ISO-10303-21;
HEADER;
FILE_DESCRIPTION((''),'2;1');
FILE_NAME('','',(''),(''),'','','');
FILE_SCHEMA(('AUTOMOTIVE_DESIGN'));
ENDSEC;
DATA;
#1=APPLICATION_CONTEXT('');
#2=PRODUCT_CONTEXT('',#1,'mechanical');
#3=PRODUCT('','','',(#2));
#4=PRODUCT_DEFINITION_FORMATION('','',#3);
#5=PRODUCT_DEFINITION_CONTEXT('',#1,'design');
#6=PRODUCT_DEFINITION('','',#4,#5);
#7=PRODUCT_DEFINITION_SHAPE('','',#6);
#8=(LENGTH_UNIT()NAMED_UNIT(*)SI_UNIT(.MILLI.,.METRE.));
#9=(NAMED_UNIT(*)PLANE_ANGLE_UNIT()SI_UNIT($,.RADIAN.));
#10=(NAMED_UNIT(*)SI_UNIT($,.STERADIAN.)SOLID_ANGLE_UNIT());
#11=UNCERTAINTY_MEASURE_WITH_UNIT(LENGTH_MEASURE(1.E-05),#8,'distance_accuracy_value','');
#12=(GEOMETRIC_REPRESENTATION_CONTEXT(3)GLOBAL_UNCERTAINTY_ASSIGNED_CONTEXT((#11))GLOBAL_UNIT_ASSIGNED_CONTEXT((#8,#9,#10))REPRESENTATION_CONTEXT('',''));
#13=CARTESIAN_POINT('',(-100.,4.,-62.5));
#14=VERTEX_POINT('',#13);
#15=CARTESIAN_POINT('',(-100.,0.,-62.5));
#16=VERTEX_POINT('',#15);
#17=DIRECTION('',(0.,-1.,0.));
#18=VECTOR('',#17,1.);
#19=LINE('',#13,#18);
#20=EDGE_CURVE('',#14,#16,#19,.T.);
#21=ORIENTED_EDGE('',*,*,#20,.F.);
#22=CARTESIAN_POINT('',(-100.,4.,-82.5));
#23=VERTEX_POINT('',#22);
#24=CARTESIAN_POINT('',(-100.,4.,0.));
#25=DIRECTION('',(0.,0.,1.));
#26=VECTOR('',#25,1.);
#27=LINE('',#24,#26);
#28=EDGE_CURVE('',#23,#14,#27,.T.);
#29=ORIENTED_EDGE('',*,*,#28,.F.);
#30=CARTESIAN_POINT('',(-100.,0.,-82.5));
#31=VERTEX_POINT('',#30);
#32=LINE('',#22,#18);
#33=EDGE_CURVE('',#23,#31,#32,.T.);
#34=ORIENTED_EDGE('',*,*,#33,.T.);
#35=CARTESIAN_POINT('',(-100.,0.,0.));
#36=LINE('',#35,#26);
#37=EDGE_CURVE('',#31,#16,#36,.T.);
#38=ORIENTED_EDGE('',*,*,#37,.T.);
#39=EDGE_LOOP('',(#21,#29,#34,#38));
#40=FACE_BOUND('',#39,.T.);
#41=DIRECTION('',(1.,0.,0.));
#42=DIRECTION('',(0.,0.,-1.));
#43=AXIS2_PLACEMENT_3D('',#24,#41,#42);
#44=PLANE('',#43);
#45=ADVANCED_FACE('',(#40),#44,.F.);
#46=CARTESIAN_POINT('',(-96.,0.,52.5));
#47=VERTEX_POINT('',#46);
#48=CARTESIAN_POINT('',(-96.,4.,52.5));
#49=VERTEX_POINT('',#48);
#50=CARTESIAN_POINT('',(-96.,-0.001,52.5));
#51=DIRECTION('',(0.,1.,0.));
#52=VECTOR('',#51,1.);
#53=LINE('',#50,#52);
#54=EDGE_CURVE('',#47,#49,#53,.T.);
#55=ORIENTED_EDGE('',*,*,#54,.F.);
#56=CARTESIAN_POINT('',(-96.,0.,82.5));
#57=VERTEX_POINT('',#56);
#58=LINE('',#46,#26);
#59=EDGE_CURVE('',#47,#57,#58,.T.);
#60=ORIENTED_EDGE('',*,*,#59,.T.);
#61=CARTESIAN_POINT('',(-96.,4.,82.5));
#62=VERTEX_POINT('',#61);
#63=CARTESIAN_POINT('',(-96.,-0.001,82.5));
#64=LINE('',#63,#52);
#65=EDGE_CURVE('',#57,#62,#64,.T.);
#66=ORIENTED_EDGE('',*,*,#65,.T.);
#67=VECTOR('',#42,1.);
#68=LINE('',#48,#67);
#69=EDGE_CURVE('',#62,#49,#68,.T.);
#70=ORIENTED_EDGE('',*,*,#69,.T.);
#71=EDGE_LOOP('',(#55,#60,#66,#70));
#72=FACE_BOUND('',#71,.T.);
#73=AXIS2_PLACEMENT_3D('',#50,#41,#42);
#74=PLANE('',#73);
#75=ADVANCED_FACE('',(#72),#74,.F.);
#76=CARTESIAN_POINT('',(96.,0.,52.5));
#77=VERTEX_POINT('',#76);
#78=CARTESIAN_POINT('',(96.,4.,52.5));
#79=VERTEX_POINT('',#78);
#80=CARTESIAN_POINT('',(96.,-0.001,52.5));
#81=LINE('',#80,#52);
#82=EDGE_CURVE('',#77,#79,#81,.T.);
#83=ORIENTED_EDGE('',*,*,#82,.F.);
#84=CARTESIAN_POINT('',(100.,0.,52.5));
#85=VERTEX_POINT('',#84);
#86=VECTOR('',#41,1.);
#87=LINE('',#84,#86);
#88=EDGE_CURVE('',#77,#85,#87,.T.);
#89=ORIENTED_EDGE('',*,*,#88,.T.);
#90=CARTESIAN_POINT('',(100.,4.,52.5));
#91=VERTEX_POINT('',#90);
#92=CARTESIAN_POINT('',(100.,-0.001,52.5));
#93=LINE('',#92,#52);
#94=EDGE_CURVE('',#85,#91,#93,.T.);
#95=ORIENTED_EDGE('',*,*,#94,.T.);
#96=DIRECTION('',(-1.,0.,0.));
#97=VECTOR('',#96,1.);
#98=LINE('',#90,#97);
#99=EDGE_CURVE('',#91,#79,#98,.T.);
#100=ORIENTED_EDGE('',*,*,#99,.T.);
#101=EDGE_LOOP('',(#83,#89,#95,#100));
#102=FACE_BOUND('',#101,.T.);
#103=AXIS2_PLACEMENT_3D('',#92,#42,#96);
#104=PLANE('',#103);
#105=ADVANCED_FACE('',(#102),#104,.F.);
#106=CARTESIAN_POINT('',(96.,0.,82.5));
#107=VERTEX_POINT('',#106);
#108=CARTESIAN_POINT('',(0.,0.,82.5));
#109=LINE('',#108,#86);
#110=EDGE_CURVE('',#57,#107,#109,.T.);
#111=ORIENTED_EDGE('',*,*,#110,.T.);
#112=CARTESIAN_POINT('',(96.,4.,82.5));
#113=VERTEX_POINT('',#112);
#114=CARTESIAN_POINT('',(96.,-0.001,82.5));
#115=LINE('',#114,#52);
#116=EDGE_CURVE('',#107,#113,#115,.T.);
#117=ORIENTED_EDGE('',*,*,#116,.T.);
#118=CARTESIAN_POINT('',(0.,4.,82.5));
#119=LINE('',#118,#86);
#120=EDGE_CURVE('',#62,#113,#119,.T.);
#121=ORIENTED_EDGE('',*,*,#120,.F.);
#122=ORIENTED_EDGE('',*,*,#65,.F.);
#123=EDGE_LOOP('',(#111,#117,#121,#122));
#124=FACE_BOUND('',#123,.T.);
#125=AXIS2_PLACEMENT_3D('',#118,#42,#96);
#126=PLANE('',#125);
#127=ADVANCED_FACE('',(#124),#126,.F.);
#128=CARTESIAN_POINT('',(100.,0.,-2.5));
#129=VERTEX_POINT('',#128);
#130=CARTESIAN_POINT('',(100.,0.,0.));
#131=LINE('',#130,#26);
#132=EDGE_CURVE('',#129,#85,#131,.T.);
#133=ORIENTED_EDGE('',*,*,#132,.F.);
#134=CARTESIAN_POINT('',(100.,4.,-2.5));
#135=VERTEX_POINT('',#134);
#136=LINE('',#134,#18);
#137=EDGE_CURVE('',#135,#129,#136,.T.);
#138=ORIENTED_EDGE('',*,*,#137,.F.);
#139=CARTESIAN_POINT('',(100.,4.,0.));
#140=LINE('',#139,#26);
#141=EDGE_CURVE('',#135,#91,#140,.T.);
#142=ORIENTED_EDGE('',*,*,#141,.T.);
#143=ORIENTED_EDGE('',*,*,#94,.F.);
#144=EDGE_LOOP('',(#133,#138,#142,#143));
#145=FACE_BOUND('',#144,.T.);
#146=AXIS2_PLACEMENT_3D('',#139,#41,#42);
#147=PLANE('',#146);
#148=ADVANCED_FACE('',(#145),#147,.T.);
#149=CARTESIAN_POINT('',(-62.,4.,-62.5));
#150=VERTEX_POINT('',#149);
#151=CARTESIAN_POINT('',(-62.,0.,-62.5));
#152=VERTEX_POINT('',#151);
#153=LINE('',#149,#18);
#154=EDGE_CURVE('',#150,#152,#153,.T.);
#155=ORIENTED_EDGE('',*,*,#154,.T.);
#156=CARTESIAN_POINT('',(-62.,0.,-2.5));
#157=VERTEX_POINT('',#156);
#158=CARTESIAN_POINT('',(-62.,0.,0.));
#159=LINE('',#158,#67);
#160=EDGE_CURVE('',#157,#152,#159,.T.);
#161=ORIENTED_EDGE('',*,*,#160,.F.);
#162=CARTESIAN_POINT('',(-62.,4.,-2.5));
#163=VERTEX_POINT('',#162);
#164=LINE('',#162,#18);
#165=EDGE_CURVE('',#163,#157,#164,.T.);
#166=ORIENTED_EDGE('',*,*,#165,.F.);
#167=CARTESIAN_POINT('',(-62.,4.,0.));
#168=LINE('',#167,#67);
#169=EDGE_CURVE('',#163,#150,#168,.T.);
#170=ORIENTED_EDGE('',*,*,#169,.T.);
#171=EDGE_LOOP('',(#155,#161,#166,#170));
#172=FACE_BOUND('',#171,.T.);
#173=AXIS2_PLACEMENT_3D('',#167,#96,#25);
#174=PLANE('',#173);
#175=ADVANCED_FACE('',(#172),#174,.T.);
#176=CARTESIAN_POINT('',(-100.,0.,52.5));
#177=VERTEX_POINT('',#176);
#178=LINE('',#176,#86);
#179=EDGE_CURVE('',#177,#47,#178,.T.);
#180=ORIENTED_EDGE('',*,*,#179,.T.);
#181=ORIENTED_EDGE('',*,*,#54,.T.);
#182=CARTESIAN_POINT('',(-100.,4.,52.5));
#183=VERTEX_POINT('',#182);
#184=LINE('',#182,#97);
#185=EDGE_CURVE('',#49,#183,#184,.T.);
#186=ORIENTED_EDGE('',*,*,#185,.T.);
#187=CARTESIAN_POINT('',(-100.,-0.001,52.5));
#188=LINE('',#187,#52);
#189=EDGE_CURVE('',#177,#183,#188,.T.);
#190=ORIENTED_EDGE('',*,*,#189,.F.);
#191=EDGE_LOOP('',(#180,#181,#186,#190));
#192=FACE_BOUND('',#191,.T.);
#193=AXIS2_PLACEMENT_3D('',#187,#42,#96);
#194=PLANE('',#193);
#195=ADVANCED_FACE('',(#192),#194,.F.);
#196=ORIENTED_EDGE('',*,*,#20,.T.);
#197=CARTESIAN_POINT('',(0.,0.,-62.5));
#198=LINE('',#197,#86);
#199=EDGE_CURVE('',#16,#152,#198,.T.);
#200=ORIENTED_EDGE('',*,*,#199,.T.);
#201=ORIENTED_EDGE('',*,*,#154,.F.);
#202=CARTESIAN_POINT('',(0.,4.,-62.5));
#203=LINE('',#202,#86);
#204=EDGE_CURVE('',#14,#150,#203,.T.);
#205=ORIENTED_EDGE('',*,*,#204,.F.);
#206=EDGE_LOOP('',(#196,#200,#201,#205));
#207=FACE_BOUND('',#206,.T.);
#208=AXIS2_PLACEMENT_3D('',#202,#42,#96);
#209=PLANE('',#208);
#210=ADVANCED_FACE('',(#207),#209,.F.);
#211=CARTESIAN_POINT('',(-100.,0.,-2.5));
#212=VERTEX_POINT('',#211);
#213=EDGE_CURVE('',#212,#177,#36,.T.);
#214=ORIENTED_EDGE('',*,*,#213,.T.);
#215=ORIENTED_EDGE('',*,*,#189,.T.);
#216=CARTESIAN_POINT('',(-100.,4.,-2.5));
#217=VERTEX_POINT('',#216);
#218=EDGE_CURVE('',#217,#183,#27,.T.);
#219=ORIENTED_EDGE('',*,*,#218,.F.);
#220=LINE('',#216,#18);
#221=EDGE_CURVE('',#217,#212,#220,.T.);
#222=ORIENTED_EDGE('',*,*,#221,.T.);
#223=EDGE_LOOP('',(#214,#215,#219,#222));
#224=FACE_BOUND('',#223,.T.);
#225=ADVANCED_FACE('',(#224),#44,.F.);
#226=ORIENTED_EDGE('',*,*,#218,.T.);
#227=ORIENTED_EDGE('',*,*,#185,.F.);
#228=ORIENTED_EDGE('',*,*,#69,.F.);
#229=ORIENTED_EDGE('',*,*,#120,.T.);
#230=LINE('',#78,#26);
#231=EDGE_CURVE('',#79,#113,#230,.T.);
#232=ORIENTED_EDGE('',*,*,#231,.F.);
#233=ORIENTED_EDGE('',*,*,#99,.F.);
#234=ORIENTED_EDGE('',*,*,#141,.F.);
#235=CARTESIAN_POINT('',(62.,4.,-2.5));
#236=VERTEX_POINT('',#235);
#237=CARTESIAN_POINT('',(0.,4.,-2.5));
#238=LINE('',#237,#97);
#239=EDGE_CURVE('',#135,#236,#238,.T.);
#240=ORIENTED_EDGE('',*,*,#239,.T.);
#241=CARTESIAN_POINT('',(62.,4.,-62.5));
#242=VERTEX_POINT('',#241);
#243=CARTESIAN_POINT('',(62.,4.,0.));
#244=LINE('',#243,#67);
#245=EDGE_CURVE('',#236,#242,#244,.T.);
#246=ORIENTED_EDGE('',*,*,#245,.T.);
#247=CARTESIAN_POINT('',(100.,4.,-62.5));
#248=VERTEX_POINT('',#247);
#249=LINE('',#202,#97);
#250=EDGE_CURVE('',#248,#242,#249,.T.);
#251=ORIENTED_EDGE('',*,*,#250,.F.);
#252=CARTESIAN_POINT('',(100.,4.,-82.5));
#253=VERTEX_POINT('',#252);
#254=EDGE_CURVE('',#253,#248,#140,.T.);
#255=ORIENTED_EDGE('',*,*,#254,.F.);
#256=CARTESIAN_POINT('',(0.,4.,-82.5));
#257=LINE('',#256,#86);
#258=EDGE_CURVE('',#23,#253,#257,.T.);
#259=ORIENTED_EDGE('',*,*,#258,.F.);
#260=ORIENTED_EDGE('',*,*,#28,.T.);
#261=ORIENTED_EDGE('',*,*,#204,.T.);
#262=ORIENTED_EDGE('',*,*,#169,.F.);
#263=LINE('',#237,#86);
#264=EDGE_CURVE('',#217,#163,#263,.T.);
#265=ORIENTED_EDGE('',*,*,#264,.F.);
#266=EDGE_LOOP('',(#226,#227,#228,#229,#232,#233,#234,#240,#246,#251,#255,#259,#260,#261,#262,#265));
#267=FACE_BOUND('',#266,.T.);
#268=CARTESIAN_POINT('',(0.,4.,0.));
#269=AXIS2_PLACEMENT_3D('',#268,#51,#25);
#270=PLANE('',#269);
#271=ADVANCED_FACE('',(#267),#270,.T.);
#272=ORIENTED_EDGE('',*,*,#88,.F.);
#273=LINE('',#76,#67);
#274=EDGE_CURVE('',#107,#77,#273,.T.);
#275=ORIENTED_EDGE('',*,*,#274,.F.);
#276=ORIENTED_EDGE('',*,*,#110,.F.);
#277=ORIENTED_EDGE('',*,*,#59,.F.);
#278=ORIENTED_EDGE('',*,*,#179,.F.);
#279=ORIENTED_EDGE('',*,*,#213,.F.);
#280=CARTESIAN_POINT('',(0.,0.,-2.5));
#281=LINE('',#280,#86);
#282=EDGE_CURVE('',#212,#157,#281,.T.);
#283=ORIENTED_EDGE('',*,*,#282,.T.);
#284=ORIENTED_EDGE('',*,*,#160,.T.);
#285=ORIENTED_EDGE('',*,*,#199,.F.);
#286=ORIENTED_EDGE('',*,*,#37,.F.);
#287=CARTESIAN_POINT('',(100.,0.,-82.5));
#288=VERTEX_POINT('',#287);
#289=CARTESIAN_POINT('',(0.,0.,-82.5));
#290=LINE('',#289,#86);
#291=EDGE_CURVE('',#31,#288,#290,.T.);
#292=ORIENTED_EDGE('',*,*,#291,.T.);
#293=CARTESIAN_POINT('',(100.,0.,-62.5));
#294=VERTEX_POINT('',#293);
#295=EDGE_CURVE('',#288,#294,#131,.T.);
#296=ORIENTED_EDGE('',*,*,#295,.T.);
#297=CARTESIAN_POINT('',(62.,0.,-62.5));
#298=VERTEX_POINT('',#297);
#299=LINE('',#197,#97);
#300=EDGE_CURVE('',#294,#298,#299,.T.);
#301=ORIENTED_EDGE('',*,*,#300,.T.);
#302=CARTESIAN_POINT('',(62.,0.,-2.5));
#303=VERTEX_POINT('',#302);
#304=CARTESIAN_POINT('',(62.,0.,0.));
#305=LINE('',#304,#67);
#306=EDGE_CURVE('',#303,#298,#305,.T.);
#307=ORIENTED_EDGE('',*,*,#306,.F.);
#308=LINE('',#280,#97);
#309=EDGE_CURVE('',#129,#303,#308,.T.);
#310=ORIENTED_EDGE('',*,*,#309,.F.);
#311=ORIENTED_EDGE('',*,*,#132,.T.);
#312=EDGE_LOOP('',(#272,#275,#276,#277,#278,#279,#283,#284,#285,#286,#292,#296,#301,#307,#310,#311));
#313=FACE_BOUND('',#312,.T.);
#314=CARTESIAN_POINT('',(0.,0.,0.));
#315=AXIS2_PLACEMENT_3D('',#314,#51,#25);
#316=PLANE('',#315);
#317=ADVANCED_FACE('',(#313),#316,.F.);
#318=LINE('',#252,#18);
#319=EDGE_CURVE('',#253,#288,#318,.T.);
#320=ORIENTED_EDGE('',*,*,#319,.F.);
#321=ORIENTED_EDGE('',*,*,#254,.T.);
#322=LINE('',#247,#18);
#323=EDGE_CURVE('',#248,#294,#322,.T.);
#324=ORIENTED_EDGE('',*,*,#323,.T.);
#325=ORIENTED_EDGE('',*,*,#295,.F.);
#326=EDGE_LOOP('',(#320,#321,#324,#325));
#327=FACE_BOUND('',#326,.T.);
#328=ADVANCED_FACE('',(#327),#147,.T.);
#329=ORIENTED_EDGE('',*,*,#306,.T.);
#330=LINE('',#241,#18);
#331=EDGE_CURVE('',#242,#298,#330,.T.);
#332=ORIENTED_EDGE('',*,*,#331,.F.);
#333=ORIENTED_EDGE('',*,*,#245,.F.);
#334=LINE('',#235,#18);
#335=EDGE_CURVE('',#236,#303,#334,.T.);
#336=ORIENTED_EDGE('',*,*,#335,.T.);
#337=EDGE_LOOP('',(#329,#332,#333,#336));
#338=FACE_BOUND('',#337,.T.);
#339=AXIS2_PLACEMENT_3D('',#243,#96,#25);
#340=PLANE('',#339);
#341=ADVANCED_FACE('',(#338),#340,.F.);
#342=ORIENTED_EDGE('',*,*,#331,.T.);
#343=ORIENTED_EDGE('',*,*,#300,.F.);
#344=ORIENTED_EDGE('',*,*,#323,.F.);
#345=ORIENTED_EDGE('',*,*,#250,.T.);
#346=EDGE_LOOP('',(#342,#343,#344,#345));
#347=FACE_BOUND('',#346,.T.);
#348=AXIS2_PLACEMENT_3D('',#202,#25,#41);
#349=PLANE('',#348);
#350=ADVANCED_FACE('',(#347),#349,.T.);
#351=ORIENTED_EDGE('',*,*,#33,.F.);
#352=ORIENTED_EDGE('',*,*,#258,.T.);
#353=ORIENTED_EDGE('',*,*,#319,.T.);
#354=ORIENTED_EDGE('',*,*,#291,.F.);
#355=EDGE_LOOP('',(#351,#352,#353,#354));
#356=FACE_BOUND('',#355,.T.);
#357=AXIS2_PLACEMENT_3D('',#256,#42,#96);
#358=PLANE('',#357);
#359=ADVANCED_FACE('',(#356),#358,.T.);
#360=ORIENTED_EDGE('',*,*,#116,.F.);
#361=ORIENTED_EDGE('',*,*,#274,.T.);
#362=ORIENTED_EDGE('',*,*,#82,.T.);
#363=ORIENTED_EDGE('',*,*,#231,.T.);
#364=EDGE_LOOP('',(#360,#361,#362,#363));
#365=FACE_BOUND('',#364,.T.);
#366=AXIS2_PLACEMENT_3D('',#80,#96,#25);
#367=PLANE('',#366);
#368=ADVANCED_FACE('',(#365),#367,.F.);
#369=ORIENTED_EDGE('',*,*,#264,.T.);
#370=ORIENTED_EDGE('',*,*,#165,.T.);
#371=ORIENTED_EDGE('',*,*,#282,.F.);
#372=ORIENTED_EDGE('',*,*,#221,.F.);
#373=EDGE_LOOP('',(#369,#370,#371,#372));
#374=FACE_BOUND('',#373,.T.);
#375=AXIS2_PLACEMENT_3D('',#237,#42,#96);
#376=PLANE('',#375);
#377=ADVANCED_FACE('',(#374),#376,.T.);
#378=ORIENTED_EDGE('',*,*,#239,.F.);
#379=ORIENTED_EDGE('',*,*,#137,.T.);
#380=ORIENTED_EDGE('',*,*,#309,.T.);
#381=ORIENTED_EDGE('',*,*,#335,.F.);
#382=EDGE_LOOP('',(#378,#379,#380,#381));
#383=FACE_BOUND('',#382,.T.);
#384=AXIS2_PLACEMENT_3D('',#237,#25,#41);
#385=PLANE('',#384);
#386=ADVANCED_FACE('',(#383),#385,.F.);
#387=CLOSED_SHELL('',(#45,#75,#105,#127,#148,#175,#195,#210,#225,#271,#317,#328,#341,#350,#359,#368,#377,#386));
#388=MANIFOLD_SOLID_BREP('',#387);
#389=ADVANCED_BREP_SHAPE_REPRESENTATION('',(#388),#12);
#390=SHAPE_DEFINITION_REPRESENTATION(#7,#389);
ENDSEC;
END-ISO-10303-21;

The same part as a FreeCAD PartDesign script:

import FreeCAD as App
import Part
import Sketcher
from FreeCAD import Vector


def add_polygon(sketch, points):
    """Adds a closed chain of lines whose ends are joined by coincident constraints."""
    first, n = sketch.GeometryCount, len(points)
    for a, b in zip(points, points[1:] + points[:1]):
        sketch.addGeometry(Part.LineSegment(App.Vector(*a, 0), App.Vector(*b, 0)), False)
    for i in range(n):
        sketch.addConstraint(Sketcher.Constraint("Coincident", first + i, 2, first + (i + 1) % n, 1))

doc = App.newDocument("Part")
body = doc.addObject("PartDesign::Body", "Body")

# Sketch on XZ plane
sketch1 = body.newObject("Sketcher::SketchObject", "Sketch")
sketch1.AttachmentSupport = (doc.getObject("XZ_Plane"), [""])
sketch1.MapMode = "FlatFace"
add_polygon(sketch1, [(100, -82), (-100, -82), (-100, -62), (-62, -62), (-62, -2), (-100, -2), (-100, 82), (100, 82), (100, -2), (62, -2), (62, -62), (100, -62)])  # lines 0-11
sketch1.addConstraint(Sketcher.Constraint("Horizontal", 0))
sketch1.addConstraint(Sketcher.Constraint("Vertical", 1))
sketch1.addConstraint(Sketcher.Constraint("Horizontal", 2))
sketch1.addConstraint(Sketcher.Constraint("Vertical", 3))
sketch1.addConstraint(Sketcher.Constraint("Horizontal", 4))
sketch1.addConstraint(Sketcher.Constraint("Vertical", 5))
sketch1.addConstraint(Sketcher.Constraint("Horizontal", 6))
sketch1.addConstraint(Sketcher.Constraint("Vertical", 7))
sketch1.addConstraint(Sketcher.Constraint("Horizontal", 8))
sketch1.addConstraint(Sketcher.Constraint("Vertical", 9))
sketch1.addConstraint(Sketcher.Constraint("Horizontal", 10))
sketch1.addConstraint(Sketcher.Constraint("Vertical", 11))
sketch1.addConstraint(Sketcher.Constraint("Symmetric", 0, 2, 6, 2, -1, 1))
sketch1.addConstraint(Sketcher.Constraint("Symmetric", 4, 2, 7, 2, -2))
sketch1.addConstraint(Sketcher.Constraint("Symmetric", 2, 2, 9, 2, -2))
sketch1.addConstraint(Sketcher.Constraint("Vertical", 7, 2, 10, 2))
sketch1.addConstraint(Sketcher.Constraint("DistanceX", 0, 2, 0, 1, 200.0))
sketch1.addConstraint(Sketcher.Constraint("DistanceX", 2, 1, 2, 2, 38.0))
sketch1.addConstraint(Sketcher.Constraint("DistanceY", 1, 1, 1, 2, 20.0))
sketch1.addConstraint(Sketcher.Constraint("DistanceY", 3, 1, 3, 2, 60.0))
sketch1.addConstraint(Sketcher.Constraint("DistanceY", 5, 1, 5, 2, 85.0))
pad1 = body.newObject("PartDesign::Pad", "Pad")
pad1.Profile = sketch1
pad1.Length = 4
pad1.Reversed = True

# Sketch on XZ plane
sketch2 = body.newObject("Sketcher::SketchObject", "Sketch001")
sketch2.AttachmentSupport = (doc.getObject("XZ_Plane"), [""])
sketch2.MapMode = "FlatFace"
sketch2.AttachmentOffset = App.Placement(Vector(0, 0, -4), App.Rotation())
add_polygon(sketch2, [(96, 52.5), (96, 82.5), (100, 82.5), (100, 52.5)])  # lines 0-3
sketch2.addConstraint(Sketcher.Constraint("Vertical", 0))
sketch2.addConstraint(Sketcher.Constraint("Horizontal", 1))
sketch2.addConstraint(Sketcher.Constraint("Vertical", 2))
sketch2.addConstraint(Sketcher.Constraint("Horizontal", 3))
sketch2.addConstraint(Sketcher.Constraint("DistanceX", 1, 1, 1, 2, 4.0))
sketch2.addConstraint(Sketcher.Constraint("DistanceY", 0, 1, 0, 2, 30.0))
sketch2.addConstraint(Sketcher.Constraint("DistanceX", -1, 1, 0, 2, 96.0))
sketch2.addConstraint(Sketcher.Constraint("DistanceY", -1, 1, 0, 2, 82.5))
pocket1 = body.newObject("PartDesign::Pocket", "Pocket")
pocket1.Profile = sketch2
pocket1.Type = "UpToFirst"
pocket1.Reversed = True

# Sketch on XZ plane
sketch3 = body.newObject("Sketcher::SketchObject", "Sketch002")
sketch3.AttachmentSupport = (doc.getObject("XZ_Plane"), [""])
sketch3.MapMode = "FlatFace"
sketch3.AttachmentOffset = App.Placement(Vector(0, 0, -4), App.Rotation())
add_polygon(sketch3, [(-100, 52.5), (-100, 82.5), (-96, 82.5), (-96, 52.5)])  # lines 0-3
sketch3.addConstraint(Sketcher.Constraint("Vertical", 0))
sketch3.addConstraint(Sketcher.Constraint("Horizontal", 1))
sketch3.addConstraint(Sketcher.Constraint("Vertical", 2))
sketch3.addConstraint(Sketcher.Constraint("Horizontal", 3))
sketch3.addConstraint(Sketcher.Constraint("DistanceX", 1, 1, 1, 2, 4.0))
sketch3.addConstraint(Sketcher.Constraint("DistanceY", 0, 1, 0, 2, 30.0))
sketch3.addConstraint(Sketcher.Constraint("DistanceX", 0, 2, -1, 1, 100.0))
sketch3.addConstraint(Sketcher.Constraint("DistanceY", -1, 1, 0, 2, 82.5))
pocket2 = body.newObject("PartDesign::Pocket", "Pocket001")
pocket2.Profile = sketch3
pocket2.Type = "UpToFirst"
pocket2.Reversed = True

doc.recompute()
